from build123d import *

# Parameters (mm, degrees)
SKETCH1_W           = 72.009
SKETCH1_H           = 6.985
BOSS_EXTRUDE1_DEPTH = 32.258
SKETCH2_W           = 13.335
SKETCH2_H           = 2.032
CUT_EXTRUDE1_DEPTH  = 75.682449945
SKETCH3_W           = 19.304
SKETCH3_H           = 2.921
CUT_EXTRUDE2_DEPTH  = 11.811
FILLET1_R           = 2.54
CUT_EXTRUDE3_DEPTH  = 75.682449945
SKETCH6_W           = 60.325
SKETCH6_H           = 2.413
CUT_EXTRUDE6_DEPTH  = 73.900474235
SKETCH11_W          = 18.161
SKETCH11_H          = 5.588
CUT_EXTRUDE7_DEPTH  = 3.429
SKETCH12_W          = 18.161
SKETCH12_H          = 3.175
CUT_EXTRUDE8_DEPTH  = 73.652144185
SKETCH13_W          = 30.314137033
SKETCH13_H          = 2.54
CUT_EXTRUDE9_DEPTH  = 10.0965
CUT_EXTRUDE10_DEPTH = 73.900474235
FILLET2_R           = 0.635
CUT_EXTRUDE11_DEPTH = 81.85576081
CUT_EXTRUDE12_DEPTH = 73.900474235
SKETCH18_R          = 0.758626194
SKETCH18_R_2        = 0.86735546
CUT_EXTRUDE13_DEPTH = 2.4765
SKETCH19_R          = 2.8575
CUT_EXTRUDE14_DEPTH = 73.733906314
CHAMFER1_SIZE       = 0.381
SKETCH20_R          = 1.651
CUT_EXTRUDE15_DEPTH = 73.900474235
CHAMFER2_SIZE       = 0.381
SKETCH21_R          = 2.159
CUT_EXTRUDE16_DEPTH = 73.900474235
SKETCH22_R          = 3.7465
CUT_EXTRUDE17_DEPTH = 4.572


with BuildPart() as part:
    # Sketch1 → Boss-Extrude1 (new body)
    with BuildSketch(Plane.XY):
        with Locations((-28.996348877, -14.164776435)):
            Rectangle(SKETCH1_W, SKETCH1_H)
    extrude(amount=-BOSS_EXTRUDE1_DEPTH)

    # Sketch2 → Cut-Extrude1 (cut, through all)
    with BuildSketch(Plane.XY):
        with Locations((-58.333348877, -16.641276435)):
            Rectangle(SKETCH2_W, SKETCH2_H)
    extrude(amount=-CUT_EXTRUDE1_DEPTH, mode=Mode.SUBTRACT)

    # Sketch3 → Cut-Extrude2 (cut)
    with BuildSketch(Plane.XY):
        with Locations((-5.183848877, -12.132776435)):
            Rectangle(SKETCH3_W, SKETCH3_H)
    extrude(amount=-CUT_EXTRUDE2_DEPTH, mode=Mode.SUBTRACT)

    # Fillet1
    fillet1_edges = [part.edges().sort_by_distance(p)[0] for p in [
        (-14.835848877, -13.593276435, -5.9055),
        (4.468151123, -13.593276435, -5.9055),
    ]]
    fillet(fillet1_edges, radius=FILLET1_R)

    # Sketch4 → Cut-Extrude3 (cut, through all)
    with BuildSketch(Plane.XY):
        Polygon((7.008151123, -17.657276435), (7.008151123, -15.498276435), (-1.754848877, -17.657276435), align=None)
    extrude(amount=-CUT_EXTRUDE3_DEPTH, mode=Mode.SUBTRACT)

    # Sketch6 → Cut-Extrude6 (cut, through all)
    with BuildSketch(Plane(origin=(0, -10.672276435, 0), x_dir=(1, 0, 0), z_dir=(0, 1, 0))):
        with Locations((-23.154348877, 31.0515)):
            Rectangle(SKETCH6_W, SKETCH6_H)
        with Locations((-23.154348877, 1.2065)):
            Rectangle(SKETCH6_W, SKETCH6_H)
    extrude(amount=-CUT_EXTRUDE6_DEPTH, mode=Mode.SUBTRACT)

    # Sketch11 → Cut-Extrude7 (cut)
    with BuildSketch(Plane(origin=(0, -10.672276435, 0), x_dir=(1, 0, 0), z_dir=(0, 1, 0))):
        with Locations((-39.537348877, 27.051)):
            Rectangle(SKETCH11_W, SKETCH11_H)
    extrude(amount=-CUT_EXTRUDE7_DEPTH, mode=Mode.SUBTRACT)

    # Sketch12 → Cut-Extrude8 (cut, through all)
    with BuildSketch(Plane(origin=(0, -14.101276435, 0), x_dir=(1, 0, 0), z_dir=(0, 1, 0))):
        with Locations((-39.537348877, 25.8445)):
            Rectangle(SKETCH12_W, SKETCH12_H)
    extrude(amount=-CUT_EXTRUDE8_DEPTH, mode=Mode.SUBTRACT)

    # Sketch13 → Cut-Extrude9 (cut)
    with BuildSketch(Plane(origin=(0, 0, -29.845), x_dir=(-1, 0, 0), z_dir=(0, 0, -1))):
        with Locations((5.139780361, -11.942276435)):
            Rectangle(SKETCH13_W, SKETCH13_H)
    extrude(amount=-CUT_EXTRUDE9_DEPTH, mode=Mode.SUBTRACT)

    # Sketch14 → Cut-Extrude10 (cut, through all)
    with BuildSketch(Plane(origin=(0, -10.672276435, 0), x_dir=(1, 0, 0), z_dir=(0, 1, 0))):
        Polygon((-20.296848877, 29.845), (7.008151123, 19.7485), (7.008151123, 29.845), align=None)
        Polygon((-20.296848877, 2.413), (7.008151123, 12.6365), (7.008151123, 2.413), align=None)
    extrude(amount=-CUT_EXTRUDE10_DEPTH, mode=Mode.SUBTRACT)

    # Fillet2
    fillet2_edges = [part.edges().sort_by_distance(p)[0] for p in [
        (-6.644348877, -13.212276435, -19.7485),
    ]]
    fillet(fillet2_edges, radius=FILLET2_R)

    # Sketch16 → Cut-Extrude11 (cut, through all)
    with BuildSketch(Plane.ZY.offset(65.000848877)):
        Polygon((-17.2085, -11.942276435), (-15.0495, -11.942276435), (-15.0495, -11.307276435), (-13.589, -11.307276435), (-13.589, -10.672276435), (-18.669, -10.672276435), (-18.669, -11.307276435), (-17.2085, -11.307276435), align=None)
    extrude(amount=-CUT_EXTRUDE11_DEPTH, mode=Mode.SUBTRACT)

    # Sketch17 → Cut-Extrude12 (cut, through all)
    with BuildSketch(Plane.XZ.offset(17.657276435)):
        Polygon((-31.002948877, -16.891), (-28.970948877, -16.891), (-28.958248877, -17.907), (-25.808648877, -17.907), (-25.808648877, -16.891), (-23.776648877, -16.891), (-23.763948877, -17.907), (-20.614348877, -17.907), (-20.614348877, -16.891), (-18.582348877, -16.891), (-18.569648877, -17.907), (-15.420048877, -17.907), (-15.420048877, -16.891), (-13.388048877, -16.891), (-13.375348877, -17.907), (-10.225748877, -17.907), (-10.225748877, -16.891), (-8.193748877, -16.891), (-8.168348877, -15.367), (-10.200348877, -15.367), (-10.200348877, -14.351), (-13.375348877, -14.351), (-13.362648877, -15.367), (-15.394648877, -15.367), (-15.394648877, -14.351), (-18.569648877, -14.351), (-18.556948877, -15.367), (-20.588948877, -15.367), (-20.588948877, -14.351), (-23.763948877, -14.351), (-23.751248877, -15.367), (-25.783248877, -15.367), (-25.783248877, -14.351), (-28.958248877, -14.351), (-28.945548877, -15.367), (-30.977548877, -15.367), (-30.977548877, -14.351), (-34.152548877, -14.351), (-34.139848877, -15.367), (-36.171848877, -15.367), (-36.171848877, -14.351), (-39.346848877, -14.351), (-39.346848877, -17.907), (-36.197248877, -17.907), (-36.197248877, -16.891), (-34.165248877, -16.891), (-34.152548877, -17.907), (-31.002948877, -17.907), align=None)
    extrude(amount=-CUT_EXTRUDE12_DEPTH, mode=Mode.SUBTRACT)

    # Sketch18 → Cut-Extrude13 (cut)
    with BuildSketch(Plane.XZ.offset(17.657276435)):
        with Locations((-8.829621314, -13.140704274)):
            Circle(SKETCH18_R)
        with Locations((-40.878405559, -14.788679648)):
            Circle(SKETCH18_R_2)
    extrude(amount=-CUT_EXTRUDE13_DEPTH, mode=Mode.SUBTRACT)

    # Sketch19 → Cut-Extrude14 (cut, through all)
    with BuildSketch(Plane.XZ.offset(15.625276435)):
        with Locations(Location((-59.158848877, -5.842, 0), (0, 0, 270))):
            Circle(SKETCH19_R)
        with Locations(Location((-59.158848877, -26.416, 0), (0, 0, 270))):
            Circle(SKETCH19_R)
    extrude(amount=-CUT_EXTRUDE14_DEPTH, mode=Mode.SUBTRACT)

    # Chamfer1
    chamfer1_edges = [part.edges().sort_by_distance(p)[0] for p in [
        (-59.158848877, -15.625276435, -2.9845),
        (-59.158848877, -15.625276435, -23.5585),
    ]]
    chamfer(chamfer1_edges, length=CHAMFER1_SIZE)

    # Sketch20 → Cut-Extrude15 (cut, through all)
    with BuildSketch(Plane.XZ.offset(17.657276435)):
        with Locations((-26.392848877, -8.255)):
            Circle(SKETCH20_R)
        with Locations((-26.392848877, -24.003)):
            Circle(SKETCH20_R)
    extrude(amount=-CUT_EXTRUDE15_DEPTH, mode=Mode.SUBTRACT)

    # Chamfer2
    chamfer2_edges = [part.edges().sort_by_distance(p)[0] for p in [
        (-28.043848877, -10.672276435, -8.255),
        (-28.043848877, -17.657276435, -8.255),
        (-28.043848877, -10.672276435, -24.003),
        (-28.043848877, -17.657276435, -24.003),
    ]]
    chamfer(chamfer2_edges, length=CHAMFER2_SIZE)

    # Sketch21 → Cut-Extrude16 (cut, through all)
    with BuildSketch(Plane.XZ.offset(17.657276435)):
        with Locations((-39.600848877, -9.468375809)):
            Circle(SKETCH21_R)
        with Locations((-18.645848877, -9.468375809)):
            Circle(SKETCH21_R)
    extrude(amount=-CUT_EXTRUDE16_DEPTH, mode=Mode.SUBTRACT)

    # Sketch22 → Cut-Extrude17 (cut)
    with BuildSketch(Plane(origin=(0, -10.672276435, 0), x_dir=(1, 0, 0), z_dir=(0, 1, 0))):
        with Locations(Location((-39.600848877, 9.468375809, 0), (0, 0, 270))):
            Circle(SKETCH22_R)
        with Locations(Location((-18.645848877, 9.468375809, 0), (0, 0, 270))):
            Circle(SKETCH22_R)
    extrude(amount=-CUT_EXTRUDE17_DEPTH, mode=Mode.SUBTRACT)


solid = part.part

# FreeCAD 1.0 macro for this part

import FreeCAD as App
import Part
import Sketcher

V = App.Vector
Q = App.Units.Quantity


def edges_at(feature, points):
    """Names of the edges that pass closest to the given points."""
    edges = feature.Shape.Edges
    near = lambda p: min(range(len(edges)), key=lambda i: edges[i].distToShape(Part.Vertex(*p))[0])
    return sorted({f"Edge{near(p) + 1}" for p in points})

doc = App.newDocument("Part")
body = doc.addObject("PartDesign::Body", "Body")

# Sketch on XY plane
sketch1 = body.newObject("Sketcher::SketchObject", "Sketch")
sketch1.AttachmentSupport = (doc.getObject("XY_Plane"), [""])
sketch1.MapMode = "FlatFace"
sketch1.addGeometry([
    Part.LineSegment(V(-65, -11, 0), V(-65, -18, 0)),
    Part.LineSegment(V(-65, -18, 0), V(7, -18, 0)),
    Part.LineSegment(V(7, -18, 0), V(7, -11, 0)),
    Part.LineSegment(V(7, -11, 0), V(-65, -11, 0)),
], False)
sketch1.addConstraint([
    Sketcher.Constraint("Coincident", 0, 2, 1, 1),
    Sketcher.Constraint("Coincident", 1, 2, 2, 1),
    Sketcher.Constraint("Coincident", 2, 2, 3, 1),
    Sketcher.Constraint("Coincident", 3, 2, 0, 1),
    Sketcher.Constraint("Vertical", 0),
    Sketcher.Constraint("Horizontal", 1),
    Sketcher.Constraint("Vertical", 2),
    Sketcher.Constraint("Horizontal", 3),
    Sketcher.Constraint("DistanceX", 1, 1, 1, 2, Q("2.835 in")),
    Sketcher.Constraint("DistanceY", 0, 2, 0, 1, Q("0.275 in")),
    Sketcher.Constraint("DistanceX", 0, 2, -1, 1, 65.000849),
    Sketcher.Constraint("DistanceY", 0, 2, -1, 1, 17.657276),
])
pad1 = body.newObject("PartDesign::Pad", "Pad")
pad1.Profile = sketch1
pad1.Length = Q("1.27 in")
pad1.Reversed = True

# Sketch on XY plane
sketch2 = body.newObject("Sketcher::SketchObject", "Sketch001")
sketch2.AttachmentSupport = (doc.getObject("XY_Plane"), [""])
sketch2.MapMode = "FlatFace"
sketch2.addGeometry([
    Part.LineSegment(V(-65, -15.6, 0), V(-65, -17.7, 0)),
    Part.LineSegment(V(-65, -17.7, 0), V(-51.7, -17.7, 0)),
    Part.LineSegment(V(-51.7, -17.7, 0), V(-51.7, -15.6, 0)),
    Part.LineSegment(V(-51.7, -15.6, 0), V(-65, -15.6, 0)),
], False)
sketch2.addConstraint([
    Sketcher.Constraint("Coincident", 0, 2, 1, 1),
    Sketcher.Constraint("Coincident", 1, 2, 2, 1),
    Sketcher.Constraint("Coincident", 2, 2, 3, 1),
    Sketcher.Constraint("Coincident", 3, 2, 0, 1),
    Sketcher.Constraint("Vertical", 0),
    Sketcher.Constraint("Horizontal", 1),
    Sketcher.Constraint("Vertical", 2),
    Sketcher.Constraint("Horizontal", 3),
    Sketcher.Constraint("DistanceY", 0, 2, 0, 1, Q("0.08 in")),
    Sketcher.Constraint("DistanceX", 1, 1, 1, 2, Q("0.525 in")),
    Sketcher.Constraint("DistanceX", 0, 2, -1, 1, 65.000849),
    Sketcher.Constraint("DistanceY", 0, 2, -1, 1, 17.657276),
])
pocket1 = body.newObject("PartDesign::Pocket", "Pocket")
pocket1.Profile = sketch2
pocket1.Type = "ThroughAll"

# Sketch on XY plane
sketch3 = body.newObject("Sketcher::SketchObject", "Sketch002")
sketch3.AttachmentSupport = (doc.getObject("XY_Plane"), [""])
sketch3.MapMode = "FlatFace"
sketch3.addGeometry([
    Part.LineSegment(V(-14.8, -10.7, 0), V(-14.8, -13.6, 0)),
    Part.LineSegment(V(-14.8, -13.6, 0), V(4.5, -13.6, 0)),
    Part.LineSegment(V(4.5, -13.6, 0), V(4.5, -10.7, 0)),
    Part.LineSegment(V(4.5, -10.7, 0), V(-14.8, -10.7, 0)),
], False)
sketch3.addConstraint([
    Sketcher.Constraint("Coincident", 0, 2, 1, 1),
    Sketcher.Constraint("Coincident", 1, 2, 2, 1),
    Sketcher.Constraint("Coincident", 2, 2, 3, 1),
    Sketcher.Constraint("Coincident", 3, 2, 0, 1),
    Sketcher.Constraint("Vertical", 0),
    Sketcher.Constraint("Horizontal", 1),
    Sketcher.Constraint("Vertical", 2),
    Sketcher.Constraint("Horizontal", 3),
    Sketcher.Constraint("DistanceX", 1, 1, 1, 2, Q("0.76 in")),
    Sketcher.Constraint("DistanceY", 0, 2, 0, 1, Q("0.115 in")),
    Sketcher.Constraint("DistanceX", 0, 2, -1, 1, 14.835849),
    Sketcher.Constraint("DistanceY", 0, 2, -1, 1, 13.593276),
])
pocket2 = body.newObject("PartDesign::Pocket", "Pocket001")
pocket2.Profile = sketch3
pocket2.Length = Q("0.465 in")
doc.recompute()

fillet = body.newObject("PartDesign::Fillet", "Fillet")
fillet.Base = (pocket2, edges_at(pocket2, [(-14.836, -13.593, -5.905), (4.468, -13.593, -5.905)]))
fillet.Radius = Q("0.1 in")

# Sketch on XY plane
sketch4 = body.newObject("Sketcher::SketchObject", "Sketch003")
sketch4.AttachmentSupport = (doc.getObject("XY_Plane"), [""])
sketch4.MapMode = "FlatFace"
sketch4.addGeometry([
    Part.LineSegment(V(7, -17.7, 0), V(7, -15.5, 0)),
    Part.LineSegment(V(7, -15.5, 0), V(-1.8, -17.7, 0)),
    Part.LineSegment(V(-1.8, -17.7, 0), V(7, -17.7, 0)),
], False)
sketch4.addConstraint([
    Sketcher.Constraint("Coincident", 0, 2, 1, 1),
    Sketcher.Constraint("Coincident", 1, 2, 2, 1),
    Sketcher.Constraint("Coincident", 2, 2, 0, 1),
    Sketcher.Constraint("Vertical", 0),
    Sketcher.Constraint("Horizontal", 2),
    Sketcher.Constraint("DistanceX", 2, 1, 2, 2, Q("0.345 in")),
    Sketcher.Constraint("DistanceY", 0, 1, 0, 2, Q("0.085 in")),
    Sketcher.Constraint("DistanceX", -1, 1, 0, 2, 7.008151),
    Sketcher.Constraint("DistanceY", 0, 2, -1, 1, 15.498276),
])
pocket3 = body.newObject("PartDesign::Pocket", "Pocket002")
pocket3.Profile = sketch4
pocket3.Type = "ThroughAll"

# Sketch on XZ plane
sketch5 = body.newObject("Sketcher::SketchObject", "Sketch004")
sketch5.AttachmentSupport = (doc.getObject("XZ_Plane"), [""])
sketch5.MapMode = "FlatFace"
sketch5.AttachmentOffset = App.Placement(V(0, 0, 10.672276), App.Rotation())
sketch5.addGeometry([
    Part.LineSegment(V(-53.3, -32.3, 0), V(-53.3, -29.8, 0)),  # 0
    Part.LineSegment(V(-53.3, -29.8, 0), V(7, -29.8, 0)),  # 1
    Part.LineSegment(V(7, -29.8, 0), V(7, -32.3, 0)),  # 2
    Part.LineSegment(V(7, -32.3, 0), V(-53.3, -32.3, 0)),  # 3
    Part.LineSegment(V(-53.3, -2.4, 0), V(-53.3, 0, 0)),  # 4
    Part.LineSegment(V(-53.3, 0, 0), V(7, 0, 0)),  # 5
    Part.LineSegment(V(7, 0, 0), V(7, -2.4, 0)),  # 6
    Part.LineSegment(V(7, -2.4, 0), V(-53.3, -2.4, 0)),  # 7
], False)
sketch5.addConstraint([
    Sketcher.Constraint("Coincident", 0, 2, 1, 1),
    Sketcher.Constraint("Coincident", 1, 2, 2, 1),
    Sketcher.Constraint("Coincident", 2, 2, 3, 1),
    Sketcher.Constraint("Coincident", 3, 2, 0, 1),
    Sketcher.Constraint("Coincident", 4, 2, 5, 1),
    Sketcher.Constraint("Coincident", 5, 2, 6, 1),
    Sketcher.Constraint("Coincident", 6, 2, 7, 1),
    Sketcher.Constraint("Coincident", 7, 2, 4, 1),
    Sketcher.Constraint("Vertical", 0),
    Sketcher.Constraint("Horizontal", 1),
    Sketcher.Constraint("Vertical", 2),
    Sketcher.Constraint("Horizontal", 3),
    Sketcher.Constraint("Vertical", 4),
    Sketcher.Constraint("Horizontal", 5),
    Sketcher.Constraint("Vertical", 6),
    Sketcher.Constraint("Horizontal", 7),
    Sketcher.Constraint("PointOnObject", 4, 2, -1),
    Sketcher.Constraint("Vertical", 3, 2, 4, 2),
    Sketcher.Constraint("Vertical", 2, 2, 5, 2),
    Sketcher.Constraint("Equal", 2, 4),
    Sketcher.Constraint("DistanceX", 1, 1, 1, 2, Q("2.375 in")),
    Sketcher.Constraint("DistanceY", 0, 1, 0, 2, Q("0.095 in")),
    Sketcher.Constraint("DistanceY", 2, 2, -1, 1, Q("1.27 in")),
    Sketcher.Constraint("DistanceX", 0, 2, -1, 1, 53.316849),
])
pocket4 = body.newObject("PartDesign::Pocket", "Pocket003")
pocket4.Profile = sketch5
pocket4.Type = "ThroughAll"
pocket4.Reversed = True

# Sketch on XZ plane
sketch6 = body.newObject("Sketcher::SketchObject", "Sketch005")
sketch6.AttachmentSupport = (doc.getObject("XZ_Plane"), [""])
sketch6.MapMode = "FlatFace"
sketch6.AttachmentOffset = App.Placement(V(0, 0, 10.672276), App.Rotation())
sketch6.addGeometry([
    Part.LineSegment(V(-49, -30, 0), V(-49, -24, 0)),
    Part.LineSegment(V(-49, -24, 0), V(-30, -24, 0)),
    Part.LineSegment(V(-30, -24, 0), V(-30, -30, 0)),
    Part.LineSegment(V(-30, -30, 0), V(-49, -30, 0)),
], False)
sketch6.addConstraint([
    Sketcher.Constraint("Coincident", 0, 2, 1, 1),
    Sketcher.Constraint("Coincident", 1, 2, 2, 1),
    Sketcher.Constraint("Coincident", 2, 2, 3, 1),
    Sketcher.Constraint("Coincident", 3, 2, 0, 1),
    Sketcher.Constraint("Vertical", 0),
    Sketcher.Constraint("Horizontal", 1),
    Sketcher.Constraint("Vertical", 2),
    Sketcher.Constraint("Horizontal", 3),
    Sketcher.Constraint("DistanceY", 0, 1, 0, 2, Q("0.22 in")),
    Sketcher.Constraint("DistanceX", 1, 1, 1, 2, Q("0.715 in")),
    Sketcher.Constraint("DistanceY", 0, 2, -1, 1, Q("0.955 in")),
    Sketcher.Constraint("DistanceX", 0, 2, -1, 1, 48.617849),
])
pocket5 = body.newObject("PartDesign::Pocket", "Pocket004")
pocket5.Profile = sketch6
pocket5.Length = Q("0.135 in")
pocket5.Reversed = True

# Sketch on XZ plane
sketch7 = body.newObject("Sketcher::SketchObject", "Sketch006")
sketch7.AttachmentSupport = (doc.getObject("XZ_Plane"), [""])
sketch7.MapMode = "FlatFace"
sketch7.AttachmentOffset = App.Placement(V(0, 0, 14.101276), App.Rotation())
sketch7.addGeometry([
    Part.LineSegment(V(-48.6, -27.4, 0), V(-48.6, -24.3, 0)),
    Part.LineSegment(V(-48.6, -24.3, 0), V(-30.5, -24.3, 0)),
    Part.LineSegment(V(-30.5, -24.3, 0), V(-30.5, -27.4, 0)),
    Part.LineSegment(V(-30.5, -27.4, 0), V(-48.6, -27.4, 0)),
], False)
sketch7.addConstraint([
    Sketcher.Constraint("Coincident", 0, 2, 1, 1),
    Sketcher.Constraint("Coincident", 1, 2, 2, 1),
    Sketcher.Constraint("Coincident", 2, 2, 3, 1),
    Sketcher.Constraint("Coincident", 3, 2, 0, 1),
    Sketcher.Constraint("Vertical", 0),
    Sketcher.Constraint("Horizontal", 1),
    Sketcher.Constraint("Vertical", 2),
    Sketcher.Constraint("Horizontal", 3),
    Sketcher.Constraint("DistanceX", 1, 1, 1, 2, Q("0.715 in")),
    Sketcher.Constraint("DistanceY", 0, 1, 0, 2, Q("0.125 in")),
    Sketcher.Constraint("DistanceY", 2, 2, -1, 1, Q("1.08 in")),
    Sketcher.Constraint("DistanceX", 0, 2, -1, 1, 48.617849),
])
pocket6 = body.newObject("PartDesign::Pocket", "Pocket005")
pocket6.Profile = sketch7
pocket6.Type = "ThroughAll"
pocket6.Reversed = True

# Sketch on XY plane
sketch8 = body.newObject("Sketcher::SketchObject", "Sketch007")
sketch8.AttachmentSupport = (doc.getObject("XY_Plane"), [""])
sketch8.MapMode = "FlatFace"
sketch8.AttachmentOffset = App.Placement(V(0, 0, -1.175 * 25.4), App.Rotation())
sketch8.addGeometry([
    Part.LineSegment(V(10, -10.7, 0), V(10, -13.2, 0)),
    Part.LineSegment(V(10, -13.2, 0), V(-20.3, -13.2, 0)),
    Part.LineSegment(V(-20.3, -13.2, 0), V(-20.3, -10.7, 0)),
    Part.LineSegment(V(-20.3, -10.7, 0), V(10, -10.7, 0)),
], False)
sketch8.addConstraint([
    Sketcher.Constraint("Coincident", 0, 2, 1, 1),
    Sketcher.Constraint("Coincident", 1, 2, 2, 1),
    Sketcher.Constraint("Coincident", 2, 2, 3, 1),
    Sketcher.Constraint("Coincident", 3, 2, 0, 1),
    Sketcher.Constraint("Vertical", 0),
    Sketcher.Constraint("Horizontal", 1),
    Sketcher.Constraint("Vertical", 2),
    Sketcher.Constraint("Horizontal", 3),
    Sketcher.Constraint("DistanceY", 0, 2, 0, 1, Q("0.1 in")),
    Sketcher.Constraint("DistanceX", 1, 2, 1, 1, 30.314137),
    Sketcher.Constraint("DistanceX", -1, 1, 0, 2, 10.017288),
    Sketcher.Constraint("DistanceY", 0, 2, -1, 1, 13.212276),
])
pocket7 = body.newObject("PartDesign::Pocket", "Pocket006")
pocket7.Profile = sketch8
pocket7.Length = Q("0.3975 in")
pocket7.Reversed = True

# Sketch on XZ plane
sketch9 = body.newObject("Sketcher::SketchObject", "Sketch008")
sketch9.AttachmentSupport = (doc.getObject("XZ_Plane"), [""])
sketch9.MapMode = "FlatFace"
sketch9.AttachmentOffset = App.Placement(V(0, 0, 10.672276), App.Rotation())
sketch9.addGeometry([
    Part.LineSegment(V(-20, -30, 0), V(7, -20, 0)),  # 0
    Part.LineSegment(V(7, -20, 0), V(7, -30, 0)),  # 1
    Part.LineSegment(V(7, -30, 0), V(-20, -30, 0)),  # 2
    Part.LineSegment(V(7, -13, 0), V(-20, -2, 0)),  # 3
    Part.LineSegment(V(-20, -2, 0), V(7, -2, 0)),  # 4
    Part.LineSegment(V(7, -2, 0), V(7, -13, 0)),  # 5
], False)
sketch9.addConstraint([
    Sketcher.Constraint("Coincident", 0, 2, 1, 1),
    Sketcher.Constraint("Coincident", 1, 2, 2, 1),
    Sketcher.Constraint("Coincident", 2, 2, 0, 1),
    Sketcher.Constraint("Coincident", 3, 2, 4, 1),
    Sketcher.Constraint("Coincident", 4, 2, 5, 1),
    Sketcher.Constraint("Coincident", 5, 2, 3, 1),
    Sketcher.Constraint("Vertical", 1),
    Sketcher.Constraint("Horizontal", 2),
    Sketcher.Constraint("Horizontal", 4),
    Sketcher.Constraint("Vertical", 5),
    Sketcher.Constraint("Vertical", 2, 2, 3, 2),
    Sketcher.Constraint("Vertical", 1, 2, 4, 2),
    Sketcher.Constraint("DistanceX", 2, 2, 2, 1, Q("1.075 in")),
    Sketcher.Constraint("DistanceY", 2, 2, 3, 2, Q("1.08 in")),
    Sketcher.Constraint("DistanceY", 0, 2, 5, 2, Q("0.28 in")),
    Sketcher.Constraint("DistanceY", 1, 2, 1, 1, Q("0.3975 in")),
    Sketcher.Constraint("DistanceY", 1, 2, -1, 1, Q("1.175 in")),
    Sketcher.Constraint("DistanceX", -1, 1, 0, 2, 7.008151),
])
pocket8 = body.newObject("PartDesign::Pocket", "Pocket007")
pocket8.Profile = sketch9
pocket8.Type = "ThroughAll"
pocket8.Reversed = True
doc.recompute()

fillet2 = body.newObject("PartDesign::Fillet", "Fillet001")
fillet2.Base = (pocket8, edges_at(pocket8, [(-6.644, -13.212, -19.748)]))
fillet2.Radius = Q("0.025 in")

# Sketch on YZ plane
sketch10 = body.newObject("Sketcher::SketchObject", "Sketch009")
sketch10.AttachmentSupport = (doc.getObject("YZ_Plane"), [""])
sketch10.MapMode = "FlatFace"
sketch10.AttachmentOffset = App.Placement(V(0, 0, -65.000849), App.Rotation())
sketch10.addGeometry([
    Part.LineSegment(V(-11.9, -17.2, 0), V(-11.9, -15, 0)),  # 0
    Part.LineSegment(V(-11.9, -15, 0), V(-11.3, -15, 0)),  # 1
    Part.LineSegment(V(-11.3, -15, 0), V(-11.3, -13.6, 0)),  # 2
    Part.LineSegment(V(-11.3, -13.6, 0), V(-10.7, -13.6, 0)),  # 3
    Part.LineSegment(V(-10.7, -13.6, 0), V(-10.7, -18.7, 0)),  # 4
    Part.LineSegment(V(-10.7, -18.7, 0), V(-11.3, -18.7, 0)),  # 5
    Part.LineSegment(V(-11.3, -18.7, 0), V(-11.3, -17.2, 0)),  # 6
    Part.LineSegment(V(-11.3, -17.2, 0), V(-11.9, -17.2, 0)),  # 7
], False)
sketch10.addConstraint([
    Sketcher.Constraint("Coincident", 0, 2, 1, 1),
    Sketcher.Constraint("Coincident", 1, 2, 2, 1),
    Sketcher.Constraint("Coincident", 2, 2, 3, 1),
    Sketcher.Constraint("Coincident", 3, 2, 4, 1),
    Sketcher.Constraint("Coincident", 4, 2, 5, 1),
    Sketcher.Constraint("Coincident", 5, 2, 6, 1),
    Sketcher.Constraint("Coincident", 6, 2, 7, 1),
    Sketcher.Constraint("Coincident", 7, 2, 0, 1),
    Sketcher.Constraint("Vertical", 0),
    Sketcher.Constraint("Horizontal", 1),
    Sketcher.Constraint("Vertical", 2),
    Sketcher.Constraint("Horizontal", 3),
    Sketcher.Constraint("Vertical", 4),
    Sketcher.Constraint("Horizontal", 5),
    Sketcher.Constraint("Vertical", 6),
    Sketcher.Constraint("Horizontal", 7),
    Sketcher.Constraint("Vertical", 2, 2, 5, 2),
    Sketcher.Constraint("Equal", 1, 3),
    Sketcher.Constraint("Equal", 2, 6),
    Sketcher.Constraint("DistanceY", 4, 2, 4, 1, Q("0.2 in")),
    Sketcher.Constraint("DistanceX", 1, 1, 1, 2, Q("0.025 in")),
    Sketcher.Constraint("DistanceY", 0, 1, 0, 2, Q("0.085 in")),
    Sketcher.Constraint("DistanceY", 2, 2, -1, 1, Q("0.535 in")),
    Sketcher.Constraint("DistanceX", 0, 2, -1, 1, 11.942276),
])
pocket9 = body.newObject("PartDesign::Pocket", "Pocket008")
pocket9.Profile = sketch10
pocket9.Type = "ThroughAll"
pocket9.Reversed = True

# Sketch on XZ plane
sketch11 = body.newObject("Sketcher::SketchObject", "Sketch010")
sketch11.AttachmentSupport = (doc.getObject("XZ_Plane"), [""])
sketch11.MapMode = "FlatFace"
sketch11.AttachmentOffset = App.Placement(V(0, 0, 17.657276), App.Rotation())
sketch11.addGeometry([
    Part.LineSegment(V(-31, -16.9, 0), V(-29, -16.9, 0)),  # 0
    Part.LineSegment(V(-29, -16.9, 0), V(-29, -17.9, 0)),  # 1
    Part.LineSegment(V(-29, -17.9, 0), V(-25.8, -17.9, 0)),  # 2
    Part.LineSegment(V(-25.8, -17.9, 0), V(-25.8, -16.9, 0)),  # 3
    Part.LineSegment(V(-25.8, -16.9, 0), V(-23.8, -16.9, 0)),  # 4
    Part.LineSegment(V(-23.8, -16.9, 0), V(-23.8, -17.9, 0)),  # 5
    Part.LineSegment(V(-23.8, -17.9, 0), V(-20.6, -17.9, 0)),  # 6
    Part.LineSegment(V(-20.6, -17.9, 0), V(-20.6, -16.9, 0)),  # 7
    Part.LineSegment(V(-20.6, -16.9, 0), V(-18.6, -16.9, 0)),  # 8
    Part.LineSegment(V(-18.6, -16.9, 0), V(-18.6, -17.9, 0)),  # 9
    Part.LineSegment(V(-18.6, -17.9, 0), V(-15.4, -17.9, 0)),  # 10
    Part.LineSegment(V(-15.4, -17.9, 0), V(-15.4, -16.9, 0)),  # 11
    Part.LineSegment(V(-15.4, -16.9, 0), V(-13.4, -16.9, 0)),  # 12
    Part.LineSegment(V(-13.4, -16.9, 0), V(-13.4, -17.9, 0)),  # 13
    Part.LineSegment(V(-13.4, -17.9, 0), V(-10.2, -17.9, 0)),  # 14
    Part.LineSegment(V(-10.2, -17.9, 0), V(-10.2, -16.9, 0)),  # 15
    Part.LineSegment(V(-10.2, -16.9, 0), V(-8.2, -16.9, 0)),  # 16
    Part.LineSegment(V(-8.2, -16.9, 0), V(-8.2, -15.4, 0)),  # 17
    Part.LineSegment(V(-8.2, -15.4, 0), V(-10.2, -15.4, 0)),  # 18
    Part.LineSegment(V(-10.2, -15.4, 0), V(-10.2, -14.4, 0)),  # 19
    Part.LineSegment(V(-10.2, -14.4, 0), V(-13.4, -14.4, 0)),  # 20
    Part.LineSegment(V(-13.4, -14.4, 0), V(-13.4, -15.4, 0)),  # 21
    Part.LineSegment(V(-13.4, -15.4, 0), V(-15.4, -15.4, 0)),  # 22
    Part.LineSegment(V(-15.4, -15.4, 0), V(-15.4, -14.4, 0)),  # 23
    Part.LineSegment(V(-15.4, -14.4, 0), V(-18.6, -14.4, 0)),  # 24
    Part.LineSegment(V(-18.6, -14.4, 0), V(-18.6, -15.4, 0)),  # 25
    Part.LineSegment(V(-18.6, -15.4, 0), V(-20.6, -15.4, 0)),  # 26
    Part.LineSegment(V(-20.6, -15.4, 0), V(-20.6, -14.4, 0)),  # 27
    Part.LineSegment(V(-20.6, -14.4, 0), V(-23.8, -14.4, 0)),  # 28
    Part.LineSegment(V(-23.8, -14.4, 0), V(-23.8, -15.4, 0)),  # 29
    Part.LineSegment(V(-23.8, -15.4, 0), V(-25.8, -15.4, 0)),  # 30
    Part.LineSegment(V(-25.8, -15.4, 0), V(-25.8, -14.4, 0)),  # 31
    Part.LineSegment(V(-25.8, -14.4, 0), V(-29, -14.4, 0)),  # 32
    Part.LineSegment(V(-29, -14.4, 0), V(-28.9, -15.4, 0)),  # 33
    Part.LineSegment(V(-28.9, -15.4, 0), V(-31, -15.4, 0)),  # 34
    Part.LineSegment(V(-31, -15.4, 0), V(-31, -14.4, 0)),  # 35
    Part.LineSegment(V(-31, -14.4, 0), V(-34.2, -14.4, 0)),  # 36
    Part.LineSegment(V(-34.2, -14.4, 0), V(-34.1, -15.4, 0)),  # 37
    Part.LineSegment(V(-34.1, -15.4, 0), V(-36.2, -15.4, 0)),  # 38
    Part.LineSegment(V(-36.2, -15.4, 0), V(-36.2, -14.4, 0)),  # 39
    Part.LineSegment(V(-36.2, -14.4, 0), V(-39.3, -14.4, 0)),  # 40
    Part.LineSegment(V(-39.3, -14.4, 0), V(-39.3, -17.9, 0)),  # 41
    Part.LineSegment(V(-39.3, -17.9, 0), V(-36.2, -17.9, 0)),  # 42
    Part.LineSegment(V(-36.2, -17.9, 0), V(-36.2, -16.9, 0)),  # 43
    Part.LineSegment(V(-36.2, -16.9, 0), V(-34.2, -16.9, 0)),  # 44
    Part.LineSegment(V(-34.2, -16.9, 0), V(-34.2, -17.9, 0)),  # 45
    Part.LineSegment(V(-34.2, -17.9, 0), V(-31, -17.9, 0)),  # 46
    Part.LineSegment(V(-31, -17.9, 0), V(-31, -16.9, 0)),  # 47
], False)
sketch11.addConstraint([
    Sketcher.Constraint("Coincident", 0, 2, 1, 1),
    Sketcher.Constraint("Coincident", 1, 2, 2, 1),
    Sketcher.Constraint("Coincident", 2, 2, 3, 1),
    Sketcher.Constraint("Coincident", 3, 2, 4, 1),
    Sketcher.Constraint("Coincident", 4, 2, 5, 1),
    Sketcher.Constraint("Coincident", 5, 2, 6, 1),
    Sketcher.Constraint("Coincident", 6, 2, 7, 1),
    Sketcher.Constraint("Coincident", 7, 2, 8, 1),
    Sketcher.Constraint("Coincident", 8, 2, 9, 1),
    Sketcher.Constraint("Coincident", 9, 2, 10, 1),
    Sketcher.Constraint("Coincident", 10, 2, 11, 1),
    Sketcher.Constraint("Coincident", 11, 2, 12, 1),
    Sketcher.Constraint("Coincident", 12, 2, 13, 1),
    Sketcher.Constraint("Coincident", 13, 2, 14, 1),
    Sketcher.Constraint("Coincident", 14, 2, 15, 1),
    Sketcher.Constraint("Coincident", 15, 2, 16, 1),
    Sketcher.Constraint("Coincident", 16, 2, 17, 1),
    Sketcher.Constraint("Coincident", 17, 2, 18, 1),
    Sketcher.Constraint("Coincident", 18, 2, 19, 1),
    Sketcher.Constraint("Coincident", 19, 2, 20, 1),
    Sketcher.Constraint("Coincident", 20, 2, 21, 1),
    Sketcher.Constraint("Coincident", 21, 2, 22, 1),
    Sketcher.Constraint("Coincident", 22, 2, 23, 1),
    Sketcher.Constraint("Coincident", 23, 2, 24, 1),
    Sketcher.Constraint("Coincident", 24, 2, 25, 1),
    Sketcher.Constraint("Coincident", 25, 2, 26, 1),
    Sketcher.Constraint("Coincident", 26, 2, 27, 1),
    Sketcher.Constraint("Coincident", 27, 2, 28, 1),
    Sketcher.Constraint("Coincident", 28, 2, 29, 1),
    Sketcher.Constraint("Coincident", 29, 2, 30, 1),
    Sketcher.Constraint("Coincident", 30, 2, 31, 1),
    Sketcher.Constraint("Coincident", 31, 2, 32, 1),
    Sketcher.Constraint("Coincident", 32, 2, 33, 1),
    Sketcher.Constraint("Coincident", 33, 2, 34, 1),
    Sketcher.Constraint("Coincident", 34, 2, 35, 1),
    Sketcher.Constraint("Coincident", 35, 2, 36, 1),
    Sketcher.Constraint("Coincident", 36, 2, 37, 1),
    Sketcher.Constraint("Coincident", 37, 2, 38, 1),
    Sketcher.Constraint("Coincident", 38, 2, 39, 1),
    Sketcher.Constraint("Coincident", 39, 2, 40, 1),
    Sketcher.Constraint("Coincident", 40, 2, 41, 1),
    Sketcher.Constraint("Coincident", 41, 2, 42, 1),
    Sketcher.Constraint("Coincident", 42, 2, 43, 1),
    Sketcher.Constraint("Coincident", 43, 2, 44, 1),
    Sketcher.Constraint("Coincident", 44, 2, 45, 1),
    Sketcher.Constraint("Coincident", 45, 2, 46, 1),
    Sketcher.Constraint("Coincident", 46, 2, 47, 1),
    Sketcher.Constraint("Coincident", 47, 2, 0, 1),
    Sketcher.Constraint("Horizontal", 0),
    Sketcher.Constraint("Horizontal", 2),
    Sketcher.Constraint("Vertical", 3),
    Sketcher.Constraint("Horizontal", 4),
    Sketcher.Constraint("Horizontal", 6),
    Sketcher.Constraint("Vertical", 7),
    Sketcher.Constraint("Horizontal", 8),
    Sketcher.Constraint("Horizontal", 10),
    Sketcher.Constraint("Vertical", 11),
    Sketcher.Constraint("Horizontal", 12),
    Sketcher.Constraint("Horizontal", 14),
    Sketcher.Constraint("Vertical", 15),
    Sketcher.Constraint("Horizontal", 16),
    Sketcher.Constraint("Horizontal", 18),
    Sketcher.Constraint("Vertical", 19),
    Sketcher.Constraint("Horizontal", 20),
    Sketcher.Constraint("Horizontal", 22),
    Sketcher.Constraint("Vertical", 23),
    Sketcher.Constraint("Horizontal", 24),
    Sketcher.Constraint("Horizontal", 26),
    Sketcher.Constraint("Vertical", 27),
    Sketcher.Constraint("Horizontal", 28),
    Sketcher.Constraint("Horizontal", 30),
    Sketcher.Constraint("Vertical", 31),
    Sketcher.Constraint("Horizontal", 32),
    Sketcher.Constraint("Horizontal", 34),
    Sketcher.Constraint("Vertical", 35),
    Sketcher.Constraint("Horizontal", 36),
    Sketcher.Constraint("Horizontal", 38),
    Sketcher.Constraint("Vertical", 39),
    Sketcher.Constraint("Horizontal", 40),
    Sketcher.Constraint("Vertical", 41),
    Sketcher.Constraint("Horizontal", 42),
    Sketcher.Constraint("Vertical", 43),
    Sketcher.Constraint("Horizontal", 44),
    Sketcher.Constraint("Horizontal", 46),
    Sketcher.Constraint("Vertical", 47),
    Sketcher.Constraint("Parallel", 1, 5),
    Sketcher.Constraint("Parallel", 5, 9),
    Sketcher.Constraint("Parallel", 9, 13),
    Sketcher.Constraint("Parallel", 13, 21),
    Sketcher.Constraint("Parallel", 21, 25),
    Sketcher.Constraint("Parallel", 25, 29),
    Sketcher.Constraint("Parallel", 29, 33),
    Sketcher.Constraint("Parallel", 33, 37),
    Sketcher.Constraint("Parallel", 37, 45),
    Sketcher.Constraint("Horizontal", 0, 2, 3, 2),
    Sketcher.Constraint("Horizontal", 2, 2, 5, 2),
    Sketcher.Constraint("Horizontal", 4, 2, 7, 2),
    Sketcher.Constraint("Horizontal", 6, 2, 9, 2),
    Sketcher.Constraint("Horizontal", 8, 2, 11, 2),
    Sketcher.Constraint("Horizontal", 10, 2, 13, 2),
    Sketcher.Constraint("Horizontal", 12, 2, 15, 2),
    Sketcher.Constraint("Horizontal", 18, 2, 21, 2),
    Sketcher.Constraint("Horizontal", 20, 2, 23, 2),
    Sketcher.Constraint("Horizontal", 22, 2, 25, 2),
    Sketcher.Constraint("Horizontal", 24, 2, 27, 2),
    Sketcher.Constraint("Horizontal", 26, 2, 29, 2),
    Sketcher.Constraint("Horizontal", 28, 2, 31, 2),
    Sketcher.Constraint("Horizontal", 30, 2, 33, 2),
    Sketcher.Constraint("Horizontal", 32, 2, 35, 2),
    Sketcher.Constraint("Horizontal", 34, 2, 37, 2),
    Sketcher.Constraint("Horizontal", 36, 2, 39, 2),
    Sketcher.Constraint("Horizontal", 14, 2, 41, 2),
    Sketcher.Constraint("Horizontal", 16, 2, 43, 2),
    Sketcher.Constraint("Horizontal", 42, 2, 45, 2),
    Sketcher.Constraint("Vertical", 13, 2, 20, 2),
    Sketcher.Constraint("Vertical", 9, 2, 24, 2),
    Sketcher.Constraint("Vertical", 5, 2, 28, 2),
    Sketcher.Constraint("Vertical", 1, 2, 32, 2),
    Sketcher.Constraint("Vertical", 36, 2, 45, 2),
    Sketcher.Constraint("Equal", 0, 4),
    Sketcher.Constraint("Equal", 2, 6),
    Sketcher.Constraint("Equal", 4, 8),
    Sketcher.Constraint("Equal", 6, 10),
    Sketcher.Constraint("Equal", 8, 12),
    Sketcher.Constraint("Equal", 10, 14),
    Sketcher.Constraint("Equal", 12, 16),
    Sketcher.Constraint("Equal", 16, 18),
    Sketcher.Constraint("Equal", 18, 22),
    Sketcher.Constraint("Equal", 20, 24),
    Sketcher.Constraint("Equal", 22, 26),
    Sketcher.Constraint("Equal", 26, 30),
    Sketcher.Constraint("Equal", 30, 34),
    Sketcher.Constraint("Equal", 32, 36),
    Sketcher.Constraint("Equal", 34, 38),
    Sketcher.Constraint("Equal", 36, 40),
    Sketcher.Constraint("Equal", 14, 42),
    Sketcher.Constraint("Equal", 15, 19),
    Sketcher.Constraint("DistanceX", 0, 1, 0, 2, Q("0.08 in")),
    Sketcher.Constraint("DistanceY", 3, 1, 3, 2, Q("0.04 in")),
    Sketcher.Constraint("DistanceY", 41, 2, 41, 1, Q("0.14 in")),
    Sketcher.Constraint("DistanceX", 2, 1, 2, 2, Q("0.124 in")),
    Sketcher.Constraint("DistanceX", 20, 2, 20, 1, Q("0.125 in")),
    Sketcher.Constraint("DistanceY", 0, 2, -1, 1, Q("0.665 in")),
    Sketcher.Constraint("DistanceX", 0, 2, -1, 1, 28.970949),
])
pocket10 = body.newObject("PartDesign::Pocket", "Pocket009")
pocket10.Profile = sketch11
pocket10.Type = "ThroughAll"

# Sketch on XZ plane
sketch12 = body.newObject("Sketcher::SketchObject", "Sketch011")
sketch12.AttachmentSupport = (doc.getObject("XZ_Plane"), [""])
sketch12.MapMode = "FlatFace"
sketch12.AttachmentOffset = App.Placement(V(0, 0, 17.657276), App.Rotation())
sketch12.addGeometry([
    Part.Circle(V(-8.8, -13.1, 0), V(0, 0, 1), 0.8),
    Part.Circle(V(-40.9, -14.8, 0), V(0, 0, 1), 0.9),
], False)
sketch12.addConstraint([
    Sketcher.Constraint("Diameter", 1, 1.734711),
    Sketcher.Constraint("Diameter", 0, 1.517252),
    Sketcher.Constraint("DistanceX", 0, 3, -1, 1, 8.829621),
    Sketcher.Constraint("DistanceY", 1, 3, -1, 1, 14.78868),
    Sketcher.Constraint("DistanceY", 0, 3, -1, 1, 13.140704),
    Sketcher.Constraint("DistanceX", 1, 3, -1, 1, 40.878406),
])
pocket11 = body.newObject("PartDesign::Pocket", "Pocket010")
pocket11.Profile = sketch12
pocket11.Length = Q("0.0975 in")

# Sketch on XZ plane
sketch13 = body.newObject("Sketcher::SketchObject", "Sketch012")
sketch13.AttachmentSupport = (doc.getObject("XZ_Plane"), [""])
sketch13.MapMode = "FlatFace"
sketch13.AttachmentOffset = App.Placement(V(0, 0, 15.625276), App.Rotation())
sketch13.addGeometry([
    Part.Circle(V(-59.2, -5.8, 0), V(0, 0, 1), 2.9),
    Part.Circle(V(-59.2, -26.4, 0), V(0, 0, 1), 2.9),
], False)
sketch13.addConstraint([
    Sketcher.Constraint("Equal", 0, 1),
    Sketcher.Constraint("Vertical", 0, 3, 1, 3),
    Sketcher.Constraint("Diameter", 0, Q("0.225 in")),
    Sketcher.Constraint("DistanceY", 0, 3, -1, 1, Q("0.23 in")),
    Sketcher.Constraint("DistanceY", 1, 3, -1, 1, Q("1.04 in")),
    Sketcher.Constraint("DistanceX", 0, 3, -1, 1, 59.158849),
])
pocket12 = body.newObject("PartDesign::Pocket", "Pocket011")
pocket12.Profile = sketch13
pocket12.Type = "ThroughAll"
doc.recompute()

chamfer = body.newObject("PartDesign::Chamfer", "Chamfer")
chamfer.Base = (pocket12, edges_at(pocket12, [(-59.159, -15.625, -2.985), (-59.159, -15.625, -23.558)]))
chamfer.Size = Q("0.015 in")

# Sketch on XZ plane
sketch14 = body.newObject("Sketcher::SketchObject", "Sketch013")
sketch14.AttachmentSupport = (doc.getObject("XZ_Plane"), [""])
sketch14.MapMode = "FlatFace"
sketch14.AttachmentOffset = App.Placement(V(0, 0, 17.657276), App.Rotation())
sketch14.addGeometry([
    Part.Circle(V(-26.4, -8.3, 0), V(0, 0, 1), 1.7),
    Part.Circle(V(-26.4, -24, 0), V(0, 0, 1), 1.7),
], False)
sketch14.addConstraint([
    Sketcher.Constraint("Equal", 0, 1),
    Sketcher.Constraint("Vertical", 0, 3, 1, 3),
    Sketcher.Constraint("Diameter", 0, Q("0.13 in")),
    Sketcher.Constraint("DistanceY", 1, 3, 0, 3, Q("0.62 in")),
    Sketcher.Constraint("DistanceY", 0, 3, -1, 1, Q("0.325 in")),
    Sketcher.Constraint("DistanceX", 0, 3, -1, 1, 26.392849),
])
pocket13 = body.newObject("PartDesign::Pocket", "Pocket012")
pocket13.Profile = sketch14
pocket13.Type = "ThroughAll"
doc.recompute()

chamfer2 = body.newObject("PartDesign::Chamfer", "Chamfer001")
chamfer2.Base = (pocket13, edges_at(pocket13, [
    (-28.044, -10.672, -8.255),
    (-28.044, -17.657, -8.255),
    (-28.044, -10.672, -24.003),
    (-28.044, -17.657, -24.003),
]))
chamfer2.Size = Q("0.015 in")

# Sketch on XZ plane
sketch15 = body.newObject("Sketcher::SketchObject", "Sketch014")
sketch15.AttachmentSupport = (doc.getObject("XZ_Plane"), [""])
sketch15.MapMode = "FlatFace"
sketch15.AttachmentOffset = App.Placement(V(0, 0, 17.657276), App.Rotation())
sketch15.addGeometry([
    Part.Circle(V(-39.6, -9.5, 0), V(0, 0, 1), 2.2),
    Part.Circle(V(-18.6, -9.5, 0), V(0, 0, 1), 2.2),
], False)
sketch15.addConstraint([
    Sketcher.Constraint("Equal", 0, 1),
    Sketcher.Constraint("Horizontal", 0, 3, 1, 3),
    Sketcher.Constraint("Diameter", 0, Q("0.17 in")),
    Sketcher.Constraint("DistanceX", 0, 3, 1, 3, Q("0.825 in")),
    Sketcher.Constraint("DistanceX", 0, 3, -1, 1, 39.600849),
    Sketcher.Constraint("DistanceY", 0, 3, -1, 1, 9.468376),
])
pocket14 = body.newObject("PartDesign::Pocket", "Pocket013")
pocket14.Profile = sketch15
pocket14.Type = "ThroughAll"

# Sketch on XZ plane
sketch16 = body.newObject("Sketcher::SketchObject", "Sketch015")
sketch16.AttachmentSupport = (doc.getObject("XZ_Plane"), [""])
sketch16.MapMode = "FlatFace"
sketch16.AttachmentOffset = App.Placement(V(0, 0, 10.672276), App.Rotation())
sketch16.addGeometry([
    Part.Circle(V(-39.6, -9.5, 0), V(0, 0, 1), 3.7),
    Part.Circle(V(-18.6, -9.5, 0), V(0, 0, 1), 3.7),
], False)
sketch16.addConstraint([
    Sketcher.Constraint("Equal", 0, 1),
    Sketcher.Constraint("Horizontal", 0, 3, 1, 3),
    Sketcher.Constraint("Diameter", 0, Q("0.295 in")),
    Sketcher.Constraint("DistanceX", 0, 3, 1, 3, Q("0.825 in")),
    Sketcher.Constraint("DistanceX", 0, 3, -1, 1, 39.600849),
    Sketcher.Constraint("DistanceY", 0, 3, -1, 1, 9.468376),
])
pocket15 = body.newObject("PartDesign::Pocket", "Pocket014")
pocket15.Profile = sketch16
pocket15.Length = Q("0.18 in")
pocket15.Reversed = True

doc.recompute()
